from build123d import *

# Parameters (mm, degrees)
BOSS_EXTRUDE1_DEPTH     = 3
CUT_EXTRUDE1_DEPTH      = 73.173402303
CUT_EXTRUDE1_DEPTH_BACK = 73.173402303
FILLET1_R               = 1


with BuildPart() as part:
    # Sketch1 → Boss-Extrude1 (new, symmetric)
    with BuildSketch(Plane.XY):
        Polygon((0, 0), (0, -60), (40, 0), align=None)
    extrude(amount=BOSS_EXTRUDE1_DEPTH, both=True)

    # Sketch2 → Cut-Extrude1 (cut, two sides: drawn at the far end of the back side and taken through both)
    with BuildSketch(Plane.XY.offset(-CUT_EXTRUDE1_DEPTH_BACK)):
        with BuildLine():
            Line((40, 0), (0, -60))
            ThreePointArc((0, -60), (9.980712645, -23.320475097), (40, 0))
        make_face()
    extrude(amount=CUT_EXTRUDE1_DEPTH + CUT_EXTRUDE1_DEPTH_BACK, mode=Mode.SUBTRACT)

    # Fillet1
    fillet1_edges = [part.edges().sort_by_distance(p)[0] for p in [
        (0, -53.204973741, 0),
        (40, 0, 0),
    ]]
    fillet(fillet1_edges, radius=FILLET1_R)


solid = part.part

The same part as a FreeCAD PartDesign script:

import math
import FreeCAD as App
import Part
import Sketcher


def edges_at(feature, points):
    """Names of the edges that pass closest to the given points."""
    edges = feature.Shape.Edges
    near = lambda p: min(range(len(edges)), key=lambda i: edges[i].distToShape(Part.Vertex(*p))[0])
    return sorted({f"Edge{near(p) + 1}" for p in points})


def add_polygon(sketch, points):
    """Adds a closed chain of lines whose ends are joined by coincident constraints."""
    first, n = sketch.GeometryCount, len(points)
    for a, b in zip(points, points[1:] + points[:1]):
        sketch.addGeometry(Part.LineSegment(App.Vector(*a, 0), App.Vector(*b, 0)), False)
    for i in range(n):
        sketch.addConstraint(Sketcher.Constraint("Coincident", first + i, 2, first + (i + 1) % n, 1))

doc = App.newDocument("Part")
body = doc.addObject("PartDesign::Body", "Body")

# Sketch on XY plane
sketch1 = doc.addObject("Sketcher::SketchObject", "Sketch")
body.addObject(sketch1)
sketch1.AttachmentSupport = (doc.XY_Plane, [""])
sketch1.MapMode = "FlatFace"
add_polygon(sketch1, [(0, 0), (0, -60), (40, 0)])  # lines 0-2
sketch1.addConstraint([
    Sketcher.Constraint("Vertical", 0),
    Sketcher.Constraint("Horizontal", 2),
    Sketcher.Constraint("Coincident", 2, 2, -1, 1),
    Sketcher.Constraint("DistanceX", 2, 2, 2, 1, 40.0),
    Sketcher.Constraint("DistanceY", 0, 2, 0, 1, 60.0),
])
pad1 = doc.addObject("PartDesign::Pad", "Pad")
body.addObject(pad1)
pad1.Profile = sketch1
pad1.Length = 6
pad1.Midplane = True

# Sketch on XY plane
sketch2 = doc.addObject("Sketcher::SketchObject", "Sketch001")
body.addObject(sketch2)
sketch2.AttachmentSupport = (doc.XY_Plane, [""])
sketch2.MapMode = "FlatFace"
sketch2.addGeometry([
    Part.LineSegment(App.Vector(0, -60, 0), App.Vector(40, 0, 0)),
    Part.ArcOfCircle(Part.Circle(App.Vector(59.90373, -56.602487, 0), App.Vector(0, 0, 1), 60), math.radians(109.373743), math.radians(183.246122)),
], False)
sketch2.addConstraint([
    Sketcher.Constraint("Coincident", 0, 1, 1, 2),
    Sketcher.Constraint("Coincident", 1, 1, 0, 2),
    Sketcher.Constraint("PointOnObject", 0, 1, -2),
    Sketcher.Constraint("PointOnObject", 1, 1, -1),
    Sketcher.Constraint("Radius", 1, 60.0),
    Sketcher.Constraint("DistanceY", 0, 1, -1, 1, 60.0),
    Sketcher.Constraint("DistanceX", -1, 1, 1, 1, 40.0),
])
pocket1 = doc.addObject("PartDesign::Pocket", "Pocket")
body.addObject(pocket1)
pocket1.Profile = sketch2
pocket1.Type = "ThroughAll"
pocket1.Midplane = True
doc.recompute()

fillet = doc.addObject("PartDesign::Fillet", "Fillet")
body.addObject(fillet)
fillet.Base = (pocket1, edges_at(pocket1, [(0, -53.205, 0), (40, 0, 0)]))
fillet.Radius = 1

doc.recompute()
